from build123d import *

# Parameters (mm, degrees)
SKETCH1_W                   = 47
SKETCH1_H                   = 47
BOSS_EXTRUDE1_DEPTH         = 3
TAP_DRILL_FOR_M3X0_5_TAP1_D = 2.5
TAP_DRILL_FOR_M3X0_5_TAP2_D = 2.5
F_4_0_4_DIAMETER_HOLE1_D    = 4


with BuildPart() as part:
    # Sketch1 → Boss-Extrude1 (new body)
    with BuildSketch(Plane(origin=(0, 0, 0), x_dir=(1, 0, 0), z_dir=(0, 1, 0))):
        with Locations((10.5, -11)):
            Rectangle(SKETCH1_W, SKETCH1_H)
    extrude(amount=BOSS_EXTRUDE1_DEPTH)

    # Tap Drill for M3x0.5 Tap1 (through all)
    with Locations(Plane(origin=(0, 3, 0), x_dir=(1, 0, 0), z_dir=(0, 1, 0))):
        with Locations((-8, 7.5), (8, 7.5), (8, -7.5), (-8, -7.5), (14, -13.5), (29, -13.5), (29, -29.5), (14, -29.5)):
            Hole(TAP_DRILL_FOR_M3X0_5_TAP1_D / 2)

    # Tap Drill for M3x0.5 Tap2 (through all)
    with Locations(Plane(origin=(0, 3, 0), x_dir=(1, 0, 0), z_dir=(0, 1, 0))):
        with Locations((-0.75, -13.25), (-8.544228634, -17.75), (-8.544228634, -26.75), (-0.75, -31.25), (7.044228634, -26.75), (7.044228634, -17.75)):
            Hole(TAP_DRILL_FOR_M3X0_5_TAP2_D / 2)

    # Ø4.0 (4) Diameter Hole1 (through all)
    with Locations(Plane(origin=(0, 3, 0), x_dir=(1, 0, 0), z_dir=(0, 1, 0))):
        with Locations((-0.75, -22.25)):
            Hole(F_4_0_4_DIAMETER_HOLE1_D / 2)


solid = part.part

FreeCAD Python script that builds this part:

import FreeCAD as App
import Part
import Sketcher

V = App.Vector

doc = App.newDocument("Part")
body = doc.addObject("PartDesign::Body", "Body")

sketch1 = doc.addObject("Sketcher::SketchObject", "Sketch")
body.addObject(sketch1)
sketch1.AttachmentSupport = (doc.XZ_Plane, [""])
sketch1.MapMode = "FlatFace"
sketch1.addGeometry([
    Part.LineSegment(V(-13, -12, 0), V(-13, 34, 0)),
    Part.LineSegment(V(-13, 34, 0), V(34, 34, 0)),
    Part.LineSegment(V(34, 34, 0), V(34, -12, 0)),
    Part.LineSegment(V(34, -12, 0), V(-13, -12, 0)),
], False)
sketch1.addConstraint([
    Sketcher.Constraint("Coincident", 0, 2, 1, 1),
    Sketcher.Constraint("Coincident", 1, 2, 2, 1),
    Sketcher.Constraint("Coincident", 2, 2, 3, 1),
    Sketcher.Constraint("Coincident", 3, 2, 0, 1),
    Sketcher.Constraint("Vertical", 0),
    Sketcher.Constraint("Horizontal", 1),
    Sketcher.Constraint("Vertical", 2),
    Sketcher.Constraint("Horizontal", 3),
    Sketcher.Constraint("Equal", 3, 0),
    Sketcher.Constraint("DistanceX", 1, 1, 1, 2, 47.0),
    Sketcher.Constraint("DistanceX", 0, 2, -1, 1, 13.0),
    Sketcher.Constraint("DistanceY", -1, 1, 0, 2, 34.5),
])
pad1 = doc.addObject("PartDesign::Pad", "Pad")
body.addObject(pad1)
pad1.Profile = sketch1
pad1.Length = 3
pad1.Reversed = True

sketch2 = doc.addObject("Sketcher::SketchObject", "Sketch001")
body.addObject(sketch2)
sketch2.AttachmentSupport = (doc.XZ_Plane, [""])
sketch2.MapMode = "FlatFace"
sketch2.AttachmentOffset = App.Placement(V(0, 0, -3), App.Rotation())
sketch2.addGeometry([
    Part.Circle(V(-8, -7.5, 0), V(0, 0, 1), 1.2),
    Part.Circle(V(8, -7.5, 0), V(0, 0, 1), 1.2),
    Part.Circle(V(8, 7.5, 0), V(0, 0, 1), 1.2),
    Part.Circle(V(-8, 7.5, 0), V(0, 0, 1), 1.2),
    Part.Circle(V(14, 13.5, 0), V(0, 0, 1), 1.2),
    Part.Circle(V(29, 13.5, 0), V(0, 0, 1), 1.2),
    Part.Circle(V(29, 29.5, 0), V(0, 0, 1), 1.2),
    Part.Circle(V(14, 29.5, 0), V(0, 0, 1), 1.2),
], False)
sketch2.addConstraint([
    Sketcher.Constraint("Equal", 0, 1),
    Sketcher.Constraint("Equal", 1, 2),
    Sketcher.Constraint("Equal", 2, 3),
    Sketcher.Constraint("Equal", 3, 4),
    Sketcher.Constraint("Equal", 4, 5),
    Sketcher.Constraint("Equal", 5, 6),
    Sketcher.Constraint("Equal", 6, 7),
    Sketcher.Constraint("Symmetric", 0, 3, 2, 3, -1, 1),
    Sketcher.Constraint("Symmetric", 1, 3, 3, 3, -1, 1),
    Sketcher.Constraint("Symmetric", 0, 3, 1, 3, -2),
    Sketcher.Constraint("Horizontal", 4, 3, 5, 3),
    Sketcher.Constraint("Horizontal", 6, 3, 7, 3),
    Sketcher.Constraint("Vertical", 5, 3, 6, 3),
    Sketcher.Constraint("Vertical", 4, 3, 7, 3),
    Sketcher.Constraint("Diameter", 0, 2.5),
    Sketcher.Constraint("DistanceX", 0, 3, -1, 1, 8.0),
    Sketcher.Constraint("DistanceX", -1, 1, 4, 3, 14.0),
    Sketcher.Constraint("DistanceX", -1, 1, 5, 3, 29.0),
    Sketcher.Constraint("DistanceY", 1, 3, 2, 3, 15.0),
    Sketcher.Constraint("DistanceY", 2, 3, 4, 3, 6.0),
    Sketcher.Constraint("DistanceY", 5, 3, 6, 3, 16.0),
])
doc.recompute()
hole = doc.addObject("PartDesign::Hole", "Hole")
body.addObject(hole)
hole.Profile = sketch2
hole.ThreadType = "None"
hole.Diameter = 2.5
hole.DepthType = "ThroughAll"
hole.Reversed = True

sketch3 = doc.addObject("Sketcher::SketchObject", "Sketch002")
body.addObject(sketch3)
sketch3.AttachmentSupport = (doc.XZ_Plane, [""])
sketch3.MapMode = "FlatFace"
sketch3.AttachmentOffset = App.Placement(V(0, 0, -3), App.Rotation())
sketch3.addGeometry([
    Part.Circle(V(-0.8, 13.2, 0), V(0, 0, 1), 1.2),
    Part.Circle(V(-8.5, 17.8, 0), V(0, 0, 1), 1.2),
    Part.Circle(V(-8.5, 26.8, 0), V(0, 0, 1), 1.2),
    Part.Circle(V(-0.8, 31.2, 0), V(0, 0, 1), 1.2),
    Part.Circle(V(7, 26.8, 0), V(0, 0, 1), 1.2),
    Part.Circle(V(7, 17.8, 0), V(0, 0, 1), 1.2),
], False)
sketch3.addConstraint([
    Sketcher.Constraint("Equal", 0, 1),
    Sketcher.Constraint("Equal", 1, 2),
    Sketcher.Constraint("Equal", 2, 3),
    Sketcher.Constraint("Equal", 3, 4),
    Sketcher.Constraint("Equal", 4, 5),
    Sketcher.Constraint("Horizontal", 2, 3, 4, 3),
    Sketcher.Constraint("Horizontal", 1, 3, 5, 3),
    Sketcher.Constraint("Vertical", 1, 3, 2, 3),
    Sketcher.Constraint("Vertical", 0, 3, 3, 3),
    Sketcher.Constraint("Vertical", 4, 3, 5, 3),
    Sketcher.Constraint("Diameter", 0, 2.5),
    Sketcher.Constraint("DistanceY", 1, 3, 2, 3, 9.0),
    Sketcher.Constraint("DistanceY", 0, 3, 3, 3, 18.0),
    Sketcher.Constraint("DistanceY", 0, 3, 1, 3, 4.5),
    Sketcher.Constraint("DistanceX", 0, 3, -1, 1, 0.75),
    Sketcher.Constraint("DistanceY", -1, 1, 0, 3, 13.25),
    Sketcher.Constraint("DistanceX", 1, 3, -1, 1, 8.544229),
    Sketcher.Constraint("DistanceX", -1, 1, 4, 3, 7.044229),
])
doc.recompute()
hole2 = doc.addObject("PartDesign::Hole", "Hole001")
body.addObject(hole2)
hole2.Profile = sketch3
hole2.ThreadType = "None"
hole2.Diameter = 2.5
hole2.DepthType = "ThroughAll"
hole2.Reversed = True

sketch4 = doc.addObject("Sketcher::SketchObject", "Sketch003")
body.addObject(sketch4)
sketch4.AttachmentSupport = (doc.XZ_Plane, [""])
sketch4.MapMode = "FlatFace"
sketch4.AttachmentOffset = App.Placement(V(0, 0, -3), App.Rotation())
sketch4.addGeometry(Part.Circle(V(-0.8, 22.2, 0), V(0, 0, 1), 2), False)
sketch4.addConstraint([
    Sketcher.Constraint("Diameter", 0, 4.0),
    Sketcher.Constraint("DistanceX", 0, 3, -1, 1, 0.75),
    Sketcher.Constraint("DistanceY", -1, 1, 0, 3, 22.25),
])
doc.recompute()
hole3 = doc.addObject("PartDesign::Hole", "Hole002")
body.addObject(hole3)
hole3.Profile = sketch4
hole3.ThreadType = "None"
hole3.Diameter = 4
hole3.DepthType = "ThroughAll"
hole3.Reversed = True

doc.recompute()
